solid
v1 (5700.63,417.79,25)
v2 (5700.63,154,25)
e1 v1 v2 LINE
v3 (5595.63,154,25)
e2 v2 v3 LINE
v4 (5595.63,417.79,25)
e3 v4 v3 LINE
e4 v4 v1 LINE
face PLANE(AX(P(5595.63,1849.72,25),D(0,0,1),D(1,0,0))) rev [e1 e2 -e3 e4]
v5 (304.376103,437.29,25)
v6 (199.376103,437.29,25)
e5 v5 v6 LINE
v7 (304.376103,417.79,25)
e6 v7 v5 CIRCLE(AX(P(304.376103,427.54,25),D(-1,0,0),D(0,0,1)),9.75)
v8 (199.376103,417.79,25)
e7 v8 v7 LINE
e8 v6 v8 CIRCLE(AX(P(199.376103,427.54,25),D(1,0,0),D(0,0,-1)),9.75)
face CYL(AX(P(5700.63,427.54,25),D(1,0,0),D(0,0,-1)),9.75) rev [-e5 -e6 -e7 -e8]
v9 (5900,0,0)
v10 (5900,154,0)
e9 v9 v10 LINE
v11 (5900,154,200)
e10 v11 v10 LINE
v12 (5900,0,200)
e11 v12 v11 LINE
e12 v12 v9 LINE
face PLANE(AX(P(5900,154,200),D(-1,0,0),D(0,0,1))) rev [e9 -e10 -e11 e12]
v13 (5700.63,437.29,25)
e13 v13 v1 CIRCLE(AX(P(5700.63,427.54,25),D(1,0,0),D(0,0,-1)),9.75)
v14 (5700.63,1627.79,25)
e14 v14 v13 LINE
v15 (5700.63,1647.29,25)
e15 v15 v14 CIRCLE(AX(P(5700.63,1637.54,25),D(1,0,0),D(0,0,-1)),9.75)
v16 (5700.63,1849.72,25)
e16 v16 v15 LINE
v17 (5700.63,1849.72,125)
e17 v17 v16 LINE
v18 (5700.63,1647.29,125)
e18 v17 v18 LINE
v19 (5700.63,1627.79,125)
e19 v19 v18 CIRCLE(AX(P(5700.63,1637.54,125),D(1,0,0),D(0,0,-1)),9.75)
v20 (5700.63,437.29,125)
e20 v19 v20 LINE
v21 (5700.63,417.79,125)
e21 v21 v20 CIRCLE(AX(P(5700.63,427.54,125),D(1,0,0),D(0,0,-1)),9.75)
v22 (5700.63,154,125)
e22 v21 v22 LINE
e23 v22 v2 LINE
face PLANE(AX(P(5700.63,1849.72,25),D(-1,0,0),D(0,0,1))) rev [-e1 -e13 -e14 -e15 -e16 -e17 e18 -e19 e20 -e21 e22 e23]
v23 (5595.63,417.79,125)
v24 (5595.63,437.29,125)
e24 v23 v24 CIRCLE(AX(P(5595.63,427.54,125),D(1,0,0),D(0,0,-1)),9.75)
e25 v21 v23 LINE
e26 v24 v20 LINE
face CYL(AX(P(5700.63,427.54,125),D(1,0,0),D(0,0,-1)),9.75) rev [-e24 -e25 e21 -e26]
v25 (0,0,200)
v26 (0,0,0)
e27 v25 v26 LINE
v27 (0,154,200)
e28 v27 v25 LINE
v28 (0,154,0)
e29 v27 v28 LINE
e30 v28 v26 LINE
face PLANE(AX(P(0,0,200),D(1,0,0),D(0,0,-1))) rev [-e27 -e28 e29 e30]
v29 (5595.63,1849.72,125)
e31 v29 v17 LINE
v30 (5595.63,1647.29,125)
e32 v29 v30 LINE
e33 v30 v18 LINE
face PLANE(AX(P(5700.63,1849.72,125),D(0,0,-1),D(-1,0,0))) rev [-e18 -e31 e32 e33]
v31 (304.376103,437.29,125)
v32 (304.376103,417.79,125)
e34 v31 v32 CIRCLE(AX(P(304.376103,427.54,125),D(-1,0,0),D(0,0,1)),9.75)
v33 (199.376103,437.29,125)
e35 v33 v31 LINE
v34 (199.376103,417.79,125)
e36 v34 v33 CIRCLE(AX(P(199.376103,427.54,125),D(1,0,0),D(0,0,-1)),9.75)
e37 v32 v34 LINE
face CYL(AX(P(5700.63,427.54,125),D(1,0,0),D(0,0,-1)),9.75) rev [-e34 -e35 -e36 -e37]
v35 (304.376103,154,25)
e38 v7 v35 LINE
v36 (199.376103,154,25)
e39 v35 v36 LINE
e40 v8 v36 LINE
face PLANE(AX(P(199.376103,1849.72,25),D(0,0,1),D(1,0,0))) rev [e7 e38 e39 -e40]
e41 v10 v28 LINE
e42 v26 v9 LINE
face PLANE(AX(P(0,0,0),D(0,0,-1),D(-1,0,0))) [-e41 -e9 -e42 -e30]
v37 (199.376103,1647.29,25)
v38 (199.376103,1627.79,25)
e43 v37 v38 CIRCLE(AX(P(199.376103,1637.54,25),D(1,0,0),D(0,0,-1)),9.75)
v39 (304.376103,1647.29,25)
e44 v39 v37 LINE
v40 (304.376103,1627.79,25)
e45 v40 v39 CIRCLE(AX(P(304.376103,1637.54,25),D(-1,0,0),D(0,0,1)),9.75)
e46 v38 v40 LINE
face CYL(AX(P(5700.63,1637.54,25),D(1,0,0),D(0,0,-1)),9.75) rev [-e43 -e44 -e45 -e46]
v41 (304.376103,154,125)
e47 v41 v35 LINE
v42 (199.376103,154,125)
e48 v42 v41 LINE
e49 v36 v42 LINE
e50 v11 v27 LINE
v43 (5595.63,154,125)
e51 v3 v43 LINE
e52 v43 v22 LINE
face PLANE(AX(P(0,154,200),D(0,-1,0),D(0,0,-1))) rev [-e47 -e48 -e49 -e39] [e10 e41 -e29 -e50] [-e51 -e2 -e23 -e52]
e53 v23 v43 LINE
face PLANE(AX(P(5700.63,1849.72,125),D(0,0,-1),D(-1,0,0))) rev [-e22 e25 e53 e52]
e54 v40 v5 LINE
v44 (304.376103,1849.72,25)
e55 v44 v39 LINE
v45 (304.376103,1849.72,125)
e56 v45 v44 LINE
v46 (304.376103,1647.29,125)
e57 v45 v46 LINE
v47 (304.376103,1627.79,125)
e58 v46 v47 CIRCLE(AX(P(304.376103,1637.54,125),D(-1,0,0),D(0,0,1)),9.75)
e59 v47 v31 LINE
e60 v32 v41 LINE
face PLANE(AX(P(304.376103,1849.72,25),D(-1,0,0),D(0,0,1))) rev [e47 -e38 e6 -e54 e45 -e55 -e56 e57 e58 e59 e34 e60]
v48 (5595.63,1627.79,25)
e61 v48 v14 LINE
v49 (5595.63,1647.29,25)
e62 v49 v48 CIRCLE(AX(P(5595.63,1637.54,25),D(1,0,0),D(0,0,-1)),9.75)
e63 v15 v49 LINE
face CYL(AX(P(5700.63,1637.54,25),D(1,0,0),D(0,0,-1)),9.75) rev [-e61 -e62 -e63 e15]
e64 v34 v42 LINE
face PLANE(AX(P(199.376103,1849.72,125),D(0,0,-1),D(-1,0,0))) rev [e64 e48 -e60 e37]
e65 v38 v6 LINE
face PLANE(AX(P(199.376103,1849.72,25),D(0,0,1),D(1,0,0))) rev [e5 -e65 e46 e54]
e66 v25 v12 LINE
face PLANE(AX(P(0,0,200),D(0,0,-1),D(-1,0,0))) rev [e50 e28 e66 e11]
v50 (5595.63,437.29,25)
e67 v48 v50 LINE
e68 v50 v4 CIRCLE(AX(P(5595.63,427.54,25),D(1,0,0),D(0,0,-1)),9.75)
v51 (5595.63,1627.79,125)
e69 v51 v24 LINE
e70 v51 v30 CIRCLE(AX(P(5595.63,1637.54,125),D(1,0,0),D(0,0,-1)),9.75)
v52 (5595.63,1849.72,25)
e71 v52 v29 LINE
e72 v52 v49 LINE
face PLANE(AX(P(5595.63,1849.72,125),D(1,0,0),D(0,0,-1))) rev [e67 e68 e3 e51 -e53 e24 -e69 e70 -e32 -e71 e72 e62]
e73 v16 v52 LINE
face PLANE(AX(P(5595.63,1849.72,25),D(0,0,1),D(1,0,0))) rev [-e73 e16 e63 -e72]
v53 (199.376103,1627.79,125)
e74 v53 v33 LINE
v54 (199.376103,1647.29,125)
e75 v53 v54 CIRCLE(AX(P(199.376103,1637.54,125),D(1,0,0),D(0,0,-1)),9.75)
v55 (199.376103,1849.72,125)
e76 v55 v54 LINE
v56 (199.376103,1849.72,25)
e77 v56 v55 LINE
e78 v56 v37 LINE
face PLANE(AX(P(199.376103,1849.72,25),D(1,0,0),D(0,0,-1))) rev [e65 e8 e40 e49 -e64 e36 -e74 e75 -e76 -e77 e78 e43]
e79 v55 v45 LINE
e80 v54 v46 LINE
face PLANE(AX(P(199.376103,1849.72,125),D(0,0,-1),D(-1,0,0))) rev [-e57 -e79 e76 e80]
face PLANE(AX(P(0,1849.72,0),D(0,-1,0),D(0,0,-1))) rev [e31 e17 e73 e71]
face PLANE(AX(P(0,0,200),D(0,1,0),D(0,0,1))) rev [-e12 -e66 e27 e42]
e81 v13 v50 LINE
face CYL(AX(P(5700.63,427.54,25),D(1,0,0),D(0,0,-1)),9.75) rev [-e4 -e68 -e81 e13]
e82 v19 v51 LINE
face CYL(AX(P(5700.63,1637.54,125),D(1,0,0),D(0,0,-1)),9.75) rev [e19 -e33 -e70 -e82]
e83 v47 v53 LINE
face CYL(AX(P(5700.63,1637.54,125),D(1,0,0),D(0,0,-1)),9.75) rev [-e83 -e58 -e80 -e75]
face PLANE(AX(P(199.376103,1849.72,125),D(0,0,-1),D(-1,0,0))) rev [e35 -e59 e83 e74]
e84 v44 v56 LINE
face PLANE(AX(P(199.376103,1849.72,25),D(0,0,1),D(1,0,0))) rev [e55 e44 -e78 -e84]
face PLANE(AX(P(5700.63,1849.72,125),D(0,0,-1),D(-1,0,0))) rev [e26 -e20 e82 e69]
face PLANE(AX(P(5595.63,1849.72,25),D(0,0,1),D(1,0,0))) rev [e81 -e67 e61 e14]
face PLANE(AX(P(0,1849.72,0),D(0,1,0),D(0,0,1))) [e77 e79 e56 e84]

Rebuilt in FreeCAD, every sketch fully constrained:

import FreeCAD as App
import Part
import Sketcher

V = App.Vector
Q = App.Units.Quantity

doc = App.newDocument("Part")
params = doc.addObject("Spreadsheet::Sheet", "Params")
for row, (alias, value) in enumerate([
    ("sketch1_width", "5900 mm"),
    ("sketch1_height", "154 mm"),
    ("pad1_length", "200 mm"),
    ("sketch2_width", "105 mm"),
    ("sketch2_height", "100 mm"),
    ("pad2_length", "1849.72 mm"),
    ("sketch3_diameter", "19.5 mm"),
    ("hole_diameter", "19.5 mm"),
    ("sketch4_diameter", "19.5 mm"),
    ("hole2_diameter", "19.5 mm"),
], start=1):
    params.set(f"A{row}", alias)
    params.set(f"B{row}", "=" + value)
    params.setAlias(f"B{row}", alias)

body = doc.addObject("PartDesign::Body", "Body")

# Sketch on XY plane
sketch1 = body.newObject("Sketcher::SketchObject", "Sketch")
sketch1.AttachmentSupport = (doc.getObject("XY_Plane"), [""])
sketch1.MapMode = "FlatFace"
sketch1.addGeometry(Part.LineSegment(V(0, 154, 0), V(0, 0, 0)), False)
sketch1.addGeometry(Part.LineSegment(V(0, 0, 0), V(5900, 0, 0)), False)
sketch1.addGeometry(Part.LineSegment(V(5900, 0, 0), V(5900, 154, 0)), False)
sketch1.addGeometry(Part.LineSegment(V(5900, 154, 0), V(0, 154, 0)), False)
sketch1.addConstraint(Sketcher.Constraint("Coincident", 0, 2, 1, 1))
sketch1.addConstraint(Sketcher.Constraint("Coincident", 1, 2, 2, 1))
sketch1.addConstraint(Sketcher.Constraint("Coincident", 2, 2, 3, 1))
sketch1.addConstraint(Sketcher.Constraint("Coincident", 3, 2, 0, 1))
sketch1.addConstraint(Sketcher.Constraint("Vertical", 0))
sketch1.addConstraint(Sketcher.Constraint("Horizontal", 1))
sketch1.addConstraint(Sketcher.Constraint("Vertical", 2))
sketch1.addConstraint(Sketcher.Constraint("Horizontal", 3))
sketch1.addConstraint(Sketcher.Constraint("Coincident", 0, 2, -1, 1))
sketch1.addConstraint(Sketcher.Constraint("DistanceX", 1, 1, 1, 2, Q("5900 mm")))
sketch1.addConstraint(Sketcher.Constraint("DistanceY", 0, 2, 0, 1, Q("154 mm")))
sketch1.setExpression("Constraints[9]", "Params.sketch1_width")
sketch1.setExpression("Constraints[10]", "Params.sketch1_height")
pad1 = body.newObject("PartDesign::Pad", "Pad")
pad1.Profile = sketch1
pad1.setExpression("Length", "Params.pad1_length")

# Sketch on XZ plane
sketch2 = body.newObject("Sketcher::SketchObject", "Sketch001")
sketch2.AttachmentSupport = (doc.getObject("XZ_Plane"), [""])
sketch2.MapMode = "FlatFace"
sketch2.addGeometry(Part.LineSegment(V(5596, 25, 0), V(5596, 125, 0)), False)
sketch2.addGeometry(Part.LineSegment(V(5596, 125, 0), V(5701, 125, 0)), False)
sketch2.addGeometry(Part.LineSegment(V(5701, 125, 0), V(5701, 25, 0)), False)
sketch2.addGeometry(Part.LineSegment(V(5701, 25, 0), V(5596, 25, 0)), False)
sketch2.addGeometry(Part.LineSegment(V(199, 25, 0), V(199, 125, 0)), False)
sketch2.addGeometry(Part.LineSegment(V(199, 125, 0), V(304, 125, 0)), False)
sketch2.addGeometry(Part.LineSegment(V(304, 125, 0), V(304, 25, 0)), False)
sketch2.addGeometry(Part.LineSegment(V(304, 25, 0), V(199, 25, 0)), False)
sketch2.addConstraint(Sketcher.Constraint("Coincident", 0, 2, 1, 1))
sketch2.addConstraint(Sketcher.Constraint("Coincident", 1, 2, 2, 1))
sketch2.addConstraint(Sketcher.Constraint("Coincident", 2, 2, 3, 1))
sketch2.addConstraint(Sketcher.Constraint("Coincident", 3, 2, 0, 1))
sketch2.addConstraint(Sketcher.Constraint("Coincident", 4, 2, 5, 1))
sketch2.addConstraint(Sketcher.Constraint("Coincident", 5, 2, 6, 1))
sketch2.addConstraint(Sketcher.Constraint("Coincident", 6, 2, 7, 1))
sketch2.addConstraint(Sketcher.Constraint("Coincident", 7, 2, 4, 1))
sketch2.addConstraint(Sketcher.Constraint("Vertical", 0))
sketch2.addConstraint(Sketcher.Constraint("Horizontal", 1))
sketch2.addConstraint(Sketcher.Constraint("Vertical", 2))
sketch2.addConstraint(Sketcher.Constraint("Horizontal", 3))
sketch2.addConstraint(Sketcher.Constraint("Vertical", 4))
sketch2.addConstraint(Sketcher.Constraint("Horizontal", 5))
sketch2.addConstraint(Sketcher.Constraint("Vertical", 6))
sketch2.addConstraint(Sketcher.Constraint("Horizontal", 7))
sketch2.addConstraint(Sketcher.Constraint("Horizontal", 1, 2, 4, 2))
sketch2.addConstraint(Sketcher.Constraint("Horizontal", 3, 2, 6, 2))
sketch2.addConstraint(Sketcher.Constraint("Equal", 3, 5))
sketch2.addConstraint(Sketcher.Constraint("DistanceX", 1, 1, 1, 2, Q("105 mm")))
sketch2.addConstraint(Sketcher.Constraint("DistanceY", 0, 1, 0, 2, Q("100 mm")))
sketch2.addConstraint(Sketcher.Constraint("DistanceY", -1, 1, 0, 2, Q("125 mm")))
sketch2.addConstraint(Sketcher.Constraint("DistanceX", -1, 1, 0, 2, Q("5595.63 mm")))
sketch2.addConstraint(Sketcher.Constraint("DistanceX", -1, 1, 4, 2, Q("199.376103 mm")))
sketch2.setExpression("Constraints[19]", "Params.sketch2_width")
sketch2.setExpression("Constraints[20]", "Params.sketch2_height")
pad2 = body.newObject("PartDesign::Pad", "Pad001")
pad2.Profile = sketch2
pad2.setExpression("Length", "Params.pad2_length")
pad2.Reversed = True

# Sketch on YZ plane
sketch3 = body.newObject("Sketcher::SketchObject", "Sketch002")
sketch3.AttachmentSupport = (doc.getObject("YZ_Plane"), [""])
sketch3.MapMode = "FlatFace"
sketch3.AttachmentOffset = App.Placement(V(0, 0, 5700.63), App.Rotation())
sketch3.addGeometry(Part.Circle(V(428, 125, 0), V(0, 0, 1), 10), False)
sketch3.addGeometry(Part.Circle(V(428, 25, 0), V(0, 0, 1), 10), False)
sketch3.addConstraint(Sketcher.Constraint("Equal", 0, 1))
sketch3.addConstraint(Sketcher.Constraint("Vertical", 0, 3, 1, 3))
sketch3.addConstraint(Sketcher.Constraint("Diameter", 0, Q("19.5 mm")))
sketch3.addConstraint(Sketcher.Constraint("DistanceY", -1, 1, 0, 3, Q("125 mm")))
sketch3.addConstraint(Sketcher.Constraint("DistanceY", -1, 1, 1, 3, Q("25 mm")))
sketch3.addConstraint(Sketcher.Constraint("DistanceX", -1, 1, 0, 3, Q("427.54 mm")))
sketch3.setExpression("Constraints[2]", "Params.sketch3_diameter")
doc.recompute()
hole = body.newObject("PartDesign::Hole", "Hole")
hole.Profile = sketch3
hole.ThreadType = "None"
hole.setExpression("Diameter", "Params.hole_diameter")
hole.DepthType = "ThroughAll"

# Sketch on YZ plane
sketch4 = body.newObject("Sketcher::SketchObject", "Sketch003")
sketch4.AttachmentSupport = (doc.getObject("YZ_Plane"), [""])
sketch4.MapMode = "FlatFace"
sketch4.AttachmentOffset = App.Placement(V(0, 0, 5700.63), App.Rotation())
sketch4.addGeometry(Part.Circle(V(1638, 125, 0), V(0, 0, 1), 10), False)
sketch4.addGeometry(Part.Circle(V(1638, 25, 0), V(0, 0, 1), 10), False)
sketch4.addConstraint(Sketcher.Constraint("Equal", 0, 1))
sketch4.addConstraint(Sketcher.Constraint("Vertical", 0, 3, 1, 3))
sketch4.addConstraint(Sketcher.Constraint("Diameter", 0, Q("19.5 mm")))
sketch4.addConstraint(Sketcher.Constraint("DistanceY", -1, 1, 0, 3, Q("125 mm")))
sketch4.addConstraint(Sketcher.Constraint("DistanceY", -1, 1, 1, 3, Q("25 mm")))
sketch4.addConstraint(Sketcher.Constraint("DistanceX", -1, 1, 0, 3, Q("1637.54 mm")))
sketch4.setExpression("Constraints[2]", "Params.sketch4_diameter")
doc.recompute()
hole2 = body.newObject("PartDesign::Hole", "Hole001")
hole2.Profile = sketch4
hole2.ThreadType = "None"
hole2.setExpression("Diameter", "Params.hole2_diameter")
hole2.DepthType = "ThroughAll"

doc.recompute()
